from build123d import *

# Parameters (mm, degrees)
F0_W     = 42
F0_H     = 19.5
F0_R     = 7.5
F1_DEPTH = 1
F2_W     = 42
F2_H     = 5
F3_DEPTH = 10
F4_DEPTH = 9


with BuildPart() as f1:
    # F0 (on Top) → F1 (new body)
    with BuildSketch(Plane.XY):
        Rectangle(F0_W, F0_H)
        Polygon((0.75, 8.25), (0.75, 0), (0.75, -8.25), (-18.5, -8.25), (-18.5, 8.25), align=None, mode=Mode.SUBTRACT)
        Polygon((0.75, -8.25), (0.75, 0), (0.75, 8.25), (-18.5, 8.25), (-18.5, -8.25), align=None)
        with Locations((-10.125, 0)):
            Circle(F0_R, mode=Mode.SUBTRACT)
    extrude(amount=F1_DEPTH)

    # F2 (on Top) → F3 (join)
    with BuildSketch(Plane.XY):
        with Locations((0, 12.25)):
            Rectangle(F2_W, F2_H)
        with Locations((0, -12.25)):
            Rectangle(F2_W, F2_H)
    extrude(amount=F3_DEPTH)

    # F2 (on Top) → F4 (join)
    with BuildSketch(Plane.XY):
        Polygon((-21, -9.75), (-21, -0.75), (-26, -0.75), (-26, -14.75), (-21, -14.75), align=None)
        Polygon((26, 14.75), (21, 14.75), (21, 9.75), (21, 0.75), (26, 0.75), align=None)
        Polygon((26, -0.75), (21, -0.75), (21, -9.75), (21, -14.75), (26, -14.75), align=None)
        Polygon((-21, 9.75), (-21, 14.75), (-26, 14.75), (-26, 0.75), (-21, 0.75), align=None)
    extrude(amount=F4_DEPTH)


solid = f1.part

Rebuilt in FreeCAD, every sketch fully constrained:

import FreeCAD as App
import Part
import Sketcher

V = App.Vector
Q = App.Units.Quantity

doc = App.newDocument("Part")
body = doc.addObject("PartDesign::Body", "Body")

# Sketch on XY plane
sketch1 = doc.addObject("Sketcher::SketchObject", "Sketch")
body.addObject(sketch1)
sketch1.AttachmentSupport = (doc.XY_Plane, [""])
sketch1.MapMode = "FlatFace"
sketch1.addGeometry([
    Part.LineSegment(V(-21, 10, 0), V(-21, -10, 0)),  # 0
    Part.LineSegment(V(-21, -10, 0), V(21, -10, 0)),  # 1
    Part.LineSegment(V(21, -10, 0), V(21, 10, 0)),  # 2
    Part.LineSegment(V(21, 10, 0), V(-21, 10, 0)),  # 3
    Part.Circle(V(-10, 0, 0), V(0, 0, 1), 8),  # 4
], False)
sketch1.addConstraint([
    Sketcher.Constraint("Coincident", 0, 2, 1, 1),
    Sketcher.Constraint("Coincident", 1, 2, 2, 1),
    Sketcher.Constraint("Coincident", 2, 2, 3, 1),
    Sketcher.Constraint("Coincident", 3, 2, 0, 1),
    Sketcher.Constraint("Vertical", 0),
    Sketcher.Constraint("Horizontal", 1),
    Sketcher.Constraint("Vertical", 2),
    Sketcher.Constraint("Horizontal", 3),
    Sketcher.Constraint("Symmetric", 0, 2, 2, 2, -1, 1),
    Sketcher.Constraint("PointOnObject", 4, 3, -1),
    Sketcher.Constraint("Diameter", 4, Q("15 mm")),
    Sketcher.Constraint("DistanceX", 1, 1, 1, 2, Q("42 mm")),
    Sketcher.Constraint("DistanceY", 0, 2, 0, 1, Q("19.5 mm")),
    Sketcher.Constraint("DistanceX", 4, 3, -1, 1, Q("10.125 mm")),
])
pad1 = doc.addObject("PartDesign::Pad", "Pad")
body.addObject(pad1)
pad1.Profile = sketch1
pad1.Length = 1

# Sketch on XY plane
sketch2 = doc.addObject("Sketcher::SketchObject", "Sketch001")
body.addObject(sketch2)
sketch2.AttachmentSupport = (doc.XY_Plane, [""])
sketch2.MapMode = "FlatFace"
sketch2.addGeometry([
    Part.LineSegment(V(-21, 15, 0), V(-21, 10, 0)),  # 0
    Part.LineSegment(V(-21, 10, 0), V(21, 10, 0)),  # 1
    Part.LineSegment(V(21, 10, 0), V(21, 15, 0)),  # 2
    Part.LineSegment(V(21, 15, 0), V(-21, 15, 0)),  # 3
    Part.LineSegment(V(-21, -10, 0), V(-21, -15, 0)),  # 4
    Part.LineSegment(V(-21, -15, 0), V(21, -15, 0)),  # 5
    Part.LineSegment(V(21, -15, 0), V(21, -10, 0)),  # 6
    Part.LineSegment(V(21, -10, 0), V(-21, -10, 0)),  # 7
], False)
sketch2.addConstraint([
    Sketcher.Constraint("Coincident", 0, 2, 1, 1),
    Sketcher.Constraint("Coincident", 1, 2, 2, 1),
    Sketcher.Constraint("Coincident", 2, 2, 3, 1),
    Sketcher.Constraint("Coincident", 3, 2, 0, 1),
    Sketcher.Constraint("Coincident", 4, 2, 5, 1),
    Sketcher.Constraint("Coincident", 5, 2, 6, 1),
    Sketcher.Constraint("Coincident", 6, 2, 7, 1),
    Sketcher.Constraint("Coincident", 7, 2, 4, 1),
    Sketcher.Constraint("Vertical", 0),
    Sketcher.Constraint("Horizontal", 1),
    Sketcher.Constraint("Vertical", 2),
    Sketcher.Constraint("Horizontal", 3),
    Sketcher.Constraint("Vertical", 4),
    Sketcher.Constraint("Horizontal", 5),
    Sketcher.Constraint("Vertical", 6),
    Sketcher.Constraint("Horizontal", 7),
    Sketcher.Constraint("Symmetric", 2, 2, 4, 2, -1, 1),
    Sketcher.Constraint("Symmetric", 0, 2, 6, 2, -1, 1),
    Sketcher.Constraint("Vertical", 3, 2, 4, 2),
    Sketcher.Constraint("DistanceX", 1, 1, 1, 2, Q("42 mm")),
    Sketcher.Constraint("DistanceY", 0, 2, 0, 1, Q("5 mm")),
    Sketcher.Constraint("DistanceY", 4, 2, 0, 2, Q("24.5 mm")),
])
pad2 = doc.addObject("PartDesign::Pad", "Pad001")
body.addObject(pad2)
pad2.Profile = sketch2
pad2.Length = 10

# Sketch on XY plane
sketch3 = doc.addObject("Sketcher::SketchObject", "Sketch002")
body.addObject(sketch3)
sketch3.AttachmentSupport = (doc.XY_Plane, [""])
sketch3.MapMode = "FlatFace"
sketch3.addGeometry([
    Part.LineSegment(V(-21, -1, 0), V(-26, -1, 0)),  # 0
    Part.LineSegment(V(-26, -1, 0), V(-26, -15, 0)),  # 1
    Part.LineSegment(V(-26, -15, 0), V(-21, -15, 0)),  # 2
    Part.LineSegment(V(-21, -15, 0), V(-21, -1, 0)),  # 3
    Part.LineSegment(V(26, 15, 0), V(21, 15, 0)),  # 4
    Part.LineSegment(V(21, 15, 0), V(21, 1, 0)),  # 5
    Part.LineSegment(V(21, 1, 0), V(26, 1, 0)),  # 6
    Part.LineSegment(V(26, 1, 0), V(26, 15, 0)),  # 7
    Part.LineSegment(V(26, -1, 0), V(21, -1, 0)),  # 8
    Part.LineSegment(V(21, -1, 0), V(21, -15, 0)),  # 9
    Part.LineSegment(V(21, -15, 0), V(26, -15, 0)),  # 10
    Part.LineSegment(V(26, -15, 0), V(26, -1, 0)),  # 11
    Part.LineSegment(V(-21, 15, 0), V(-26, 15, 0)),  # 12
    Part.LineSegment(V(-26, 15, 0), V(-26, 1, 0)),  # 13
    Part.LineSegment(V(-26, 1, 0), V(-21, 1, 0)),  # 14
    Part.LineSegment(V(-21, 1, 0), V(-21, 15, 0)),  # 15
], False)
sketch3.addConstraint([
    Sketcher.Constraint("Coincident", 0, 2, 1, 1),
    Sketcher.Constraint("Coincident", 1, 2, 2, 1),
    Sketcher.Constraint("Coincident", 2, 2, 3, 1),
    Sketcher.Constraint("Coincident", 3, 2, 0, 1),
    Sketcher.Constraint("Coincident", 4, 2, 5, 1),
    Sketcher.Constraint("Coincident", 5, 2, 6, 1),
    Sketcher.Constraint("Coincident", 6, 2, 7, 1),
    Sketcher.Constraint("Coincident", 7, 2, 4, 1),
    Sketcher.Constraint("Coincident", 8, 2, 9, 1),
    Sketcher.Constraint("Coincident", 9, 2, 10, 1),
    Sketcher.Constraint("Coincident", 10, 2, 11, 1),
    Sketcher.Constraint("Coincident", 11, 2, 8, 1),
    Sketcher.Constraint("Coincident", 12, 2, 13, 1),
    Sketcher.Constraint("Coincident", 13, 2, 14, 1),
    Sketcher.Constraint("Coincident", 14, 2, 15, 1),
    Sketcher.Constraint("Coincident", 15, 2, 12, 1),
    Sketcher.Constraint("Horizontal", 0),
    Sketcher.Constraint("Vertical", 1),
    Sketcher.Constraint("Horizontal", 2),
    Sketcher.Constraint("Vertical", 3),
    Sketcher.Constraint("Horizontal", 4),
    Sketcher.Constraint("Vertical", 5),
    Sketcher.Constraint("Horizontal", 6),
    Sketcher.Constraint("Vertical", 7),
    Sketcher.Constraint("Horizontal", 8),
    Sketcher.Constraint("Vertical", 9),
    Sketcher.Constraint("Horizontal", 10),
    Sketcher.Constraint("Vertical", 11),
    Sketcher.Constraint("Horizontal", 12),
    Sketcher.Constraint("Vertical", 13),
    Sketcher.Constraint("Horizontal", 14),
    Sketcher.Constraint("Vertical", 15),
    Sketcher.Constraint("Symmetric", 2, 2, 4, 2, -1, 1),
    Sketcher.Constraint("Symmetric", 0, 2, 6, 2, -1, 1),
    Sketcher.Constraint("Symmetric", 10, 2, 12, 2, -1, 1),
    Sketcher.Constraint("Symmetric", 8, 2, 14, 2, -1, 1),
    Sketcher.Constraint("Symmetric", 3, 2, 8, 2, -2),
    Sketcher.Constraint("Symmetric", 1, 2, 10, 2, -2),
    Sketcher.Constraint("DistanceX", 0, 2, 0, 1, Q("5 mm")),
    Sketcher.Constraint("DistanceY", 1, 2, 1, 1, Q("14 mm")),
    Sketcher.Constraint("DistanceX", 0, 2, -1, 1, Q("26 mm")),
    Sketcher.Constraint("DistanceY", 3, 2, 4, 2, Q("15.5 mm")),
])
pad3 = doc.addObject("PartDesign::Pad", "Pad002")
body.addObject(pad3)
pad3.Profile = sketch3
pad3.Length = 9

doc.recompute()
